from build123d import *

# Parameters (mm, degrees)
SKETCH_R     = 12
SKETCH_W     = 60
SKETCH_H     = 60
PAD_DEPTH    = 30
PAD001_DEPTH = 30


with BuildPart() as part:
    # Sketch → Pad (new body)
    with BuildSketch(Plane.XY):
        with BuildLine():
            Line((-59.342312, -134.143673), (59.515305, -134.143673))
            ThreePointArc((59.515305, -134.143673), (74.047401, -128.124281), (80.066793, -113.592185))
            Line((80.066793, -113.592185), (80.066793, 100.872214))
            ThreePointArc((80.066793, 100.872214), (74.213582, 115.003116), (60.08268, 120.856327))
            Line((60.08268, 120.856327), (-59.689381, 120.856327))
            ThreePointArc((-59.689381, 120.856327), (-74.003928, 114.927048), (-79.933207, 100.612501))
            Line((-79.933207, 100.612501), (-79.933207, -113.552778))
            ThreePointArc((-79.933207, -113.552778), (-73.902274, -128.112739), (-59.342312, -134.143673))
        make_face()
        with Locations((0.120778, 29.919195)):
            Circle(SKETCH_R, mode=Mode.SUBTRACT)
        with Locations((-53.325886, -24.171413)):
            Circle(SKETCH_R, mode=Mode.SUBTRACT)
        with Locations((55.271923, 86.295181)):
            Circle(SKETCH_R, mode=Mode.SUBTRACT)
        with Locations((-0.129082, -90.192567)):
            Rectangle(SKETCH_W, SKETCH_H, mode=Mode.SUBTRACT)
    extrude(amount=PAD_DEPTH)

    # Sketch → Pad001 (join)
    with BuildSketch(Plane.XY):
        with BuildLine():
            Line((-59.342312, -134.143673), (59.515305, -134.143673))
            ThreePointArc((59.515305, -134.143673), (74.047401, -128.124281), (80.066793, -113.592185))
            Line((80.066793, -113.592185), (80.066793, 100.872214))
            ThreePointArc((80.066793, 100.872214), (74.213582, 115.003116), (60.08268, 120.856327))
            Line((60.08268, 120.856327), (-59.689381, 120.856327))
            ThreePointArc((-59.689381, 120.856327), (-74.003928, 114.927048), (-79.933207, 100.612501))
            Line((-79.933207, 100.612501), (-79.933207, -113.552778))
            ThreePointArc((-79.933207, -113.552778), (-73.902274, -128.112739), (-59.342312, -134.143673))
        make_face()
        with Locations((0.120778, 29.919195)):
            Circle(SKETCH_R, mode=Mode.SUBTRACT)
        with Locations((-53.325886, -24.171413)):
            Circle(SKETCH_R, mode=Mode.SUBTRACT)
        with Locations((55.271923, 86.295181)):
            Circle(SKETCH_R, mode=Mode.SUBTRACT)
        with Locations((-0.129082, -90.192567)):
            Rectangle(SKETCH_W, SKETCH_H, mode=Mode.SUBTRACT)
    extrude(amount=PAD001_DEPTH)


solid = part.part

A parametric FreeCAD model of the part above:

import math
import FreeCAD as App
import Part
import Sketcher
from FreeCAD import Vector
Q = App.Units.Quantity


def add_polygon(sketch, points):
    """Adds a closed chain of lines whose ends are joined by coincident constraints."""
    first, n = sketch.GeometryCount, len(points)
    for a, b in zip(points, points[1:] + points[:1]):
        sketch.addGeometry(Part.LineSegment(App.Vector(*a, 0), App.Vector(*b, 0)), False)
    for i in range(n):
        sketch.addConstraint(Sketcher.Constraint("Coincident", first + i, 2, first + (i + 1) % n, 1))

doc = App.newDocument("Part")
body = doc.addObject("PartDesign::Body", "Body")

sketch1 = doc.addObject("Sketcher::SketchObject", "Sketch")
body.addObject(sketch1)
sketch1.AttachmentSupport = (doc.XY_Plane, [""])
sketch1.MapMode = "FlatFace"
sketch1.addGeometry(Part.LineSegment(Vector(-59, -134, 0), Vector(60, -134, 0)), False)
sketch1.addGeometry(Part.ArcOfCircle(Part.Circle(Vector(60, -114, 0), Vector(0, 0, 1), 21), math.radians(-90), math.radians(0)), False)
sketch1.addGeometry(Part.LineSegment(Vector(80, -114, 0), Vector(80, 101, 0)), False)
sketch1.addGeometry(Part.ArcOfCircle(Part.Circle(Vector(60, 101, 0), Vector(0, 0, 1), 20), math.radians(0), math.radians(90)), False)
sketch1.addGeometry(Part.LineSegment(Vector(60, 121, 0), Vector(-60, 121, 0)), False)
sketch1.addGeometry(Part.ArcOfCircle(Part.Circle(Vector(-60, 101, 0), Vector(0, 0, 1), 20), math.radians(90), math.radians(180)), False)
sketch1.addGeometry(Part.LineSegment(Vector(-80, 101, 0), Vector(-80, -114, 0)), False)
sketch1.addGeometry(Part.ArcOfCircle(Part.Circle(Vector(-59, -114, 0), Vector(0, 0, 1), 21), math.radians(180), math.radians(270)), False)
add_polygon(sketch1, [(30, -120), (-30, -120), (-30, -60), (30, -60)])
sketch1.addGeometry(Part.Circle(Vector(-53, -24, 0), Vector(0, 0, 1), 12), False)
sketch1.addGeometry(Part.Circle(Vector(0, 30, 0), Vector(0, 0, 1), 12), False)
sketch1.addGeometry(Part.Circle(Vector(55, 86, 0), Vector(0, 0, 1), 12), False)
sketch1.addConstraint([
    Sketcher.Constraint("Tangent", 0, 2, 1, 1),
    Sketcher.Constraint("Tangent", 1, 2, 2, 1),
    Sketcher.Constraint("Tangent", 2, 2, 3, 1),
    Sketcher.Constraint("Tangent", 3, 2, 4, 1),
    Sketcher.Constraint("Tangent", 4, 2, 5, 1),
    Sketcher.Constraint("Tangent", 5, 2, 6, 1),
    Sketcher.Constraint("Tangent", 6, 2, 7, 1),
    Sketcher.Constraint("Tangent", 7, 2, 0, 1),
    Sketcher.Constraint("Horizontal", 0),
    Sketcher.Constraint("Vertical", 2),
    Sketcher.Constraint("Horizontal", 4),
    Sketcher.Constraint("Vertical", 6),
    Sketcher.Constraint("Horizontal", 8),
    Sketcher.Constraint("Vertical", 9),
    Sketcher.Constraint("Horizontal", 10),
    Sketcher.Constraint("Vertical", 11),
    Sketcher.Constraint("Equal", 12, 13),
    Sketcher.Constraint("Equal", 13, 14),
    Sketcher.Constraint("Equal", 10, 9),
    Sketcher.Constraint("Diameter", 12, Q("24 mm")),
    Sketcher.Constraint("DistanceX", 8, 2, 8, 1, Q("60 mm")),
    Sketcher.Constraint("DistanceX", 6, 2, 1, 2, Q("160 mm")),
    Sketcher.Constraint("Radius", 1, Q("20.55149 mm")),
    Sketcher.Constraint("DistanceY", 2, 1, 2, 2, Q("214.464399 mm")),
    Sketcher.Constraint("Radius", 3, Q("19.984112 mm")),
    Sketcher.Constraint("Radius", 5, Q("20.243825 mm")),
    Sketcher.Constraint("Radius", 7, Q("20.590895 mm")),
    Sketcher.Constraint("DistanceY", -1, 1, 5, 2, Q("100.612501 mm")),
    Sketcher.Constraint("DistanceX", -1, 1, 3, 3, Q("60.082681 mm")),
    Sketcher.Constraint("DistanceY", -1, 1, 14, 3, Q("86.295181 mm")),
    Sketcher.Constraint("DistanceX", 12, 3, 1, 3, Q("112.841189 mm")),
    Sketcher.Constraint("DistanceY", 1, 3, 12, 3, Q("89.42077 mm")),
    Sketcher.Constraint("DistanceY", 12, 3, 13, 3, Q("54.090608 mm")),
    Sketcher.Constraint("DistanceX", 5, 3, 13, 3, Q("59.81016 mm")),
    Sketcher.Constraint("DistanceX", 12, 3, 14, 3, Q("108.597809 mm")),
    Sketcher.Constraint("DistanceX", 7, 3, 8, 2, Q("29.21323 mm")),
    Sketcher.Constraint("DistanceY", 8, 2, 7, 3, Q("6.639789 mm")),
])
pad1 = doc.addObject("PartDesign::Pad", "Pad")
body.addObject(pad1)
pad1.Profile = sketch1
pad1.Length = 30

sketch2 = doc.addObject("Sketcher::SketchObject", "Sketch001")
body.addObject(sketch2)
sketch2.AttachmentSupport = (doc.XY_Plane, [""])
sketch2.MapMode = "FlatFace"
sketch2.addGeometry(Part.LineSegment(Vector(-59, -134, 0), Vector(60, -134, 0)), False)
sketch2.addGeometry(Part.ArcOfCircle(Part.Circle(Vector(60, -114, 0), Vector(0, 0, 1), 21), math.radians(-90), math.radians(0)), False)
sketch2.addGeometry(Part.LineSegment(Vector(80, -114, 0), Vector(80, 101, 0)), False)
sketch2.addGeometry(Part.ArcOfCircle(Part.Circle(Vector(60, 101, 0), Vector(0, 0, 1), 20), math.radians(0), math.radians(90)), False)
sketch2.addGeometry(Part.LineSegment(Vector(60, 121, 0), Vector(-60, 121, 0)), False)
sketch2.addGeometry(Part.ArcOfCircle(Part.Circle(Vector(-60, 101, 0), Vector(0, 0, 1), 20), math.radians(90), math.radians(180)), False)
sketch2.addGeometry(Part.LineSegment(Vector(-80, 101, 0), Vector(-80, -114, 0)), False)
sketch2.addGeometry(Part.ArcOfCircle(Part.Circle(Vector(-59, -114, 0), Vector(0, 0, 1), 21), math.radians(180), math.radians(270)), False)
add_polygon(sketch2, [(30, -120), (-30, -120), (-30, -60), (30, -60)])
sketch2.addGeometry(Part.Circle(Vector(-53, -24, 0), Vector(0, 0, 1), 12), False)
sketch2.addGeometry(Part.Circle(Vector(0, 30, 0), Vector(0, 0, 1), 12), False)
sketch2.addGeometry(Part.Circle(Vector(55, 86, 0), Vector(0, 0, 1), 12), False)
sketch2.addConstraint([
    Sketcher.Constraint("Tangent", 0, 2, 1, 1),
    Sketcher.Constraint("Tangent", 1, 2, 2, 1),
    Sketcher.Constraint("Tangent", 2, 2, 3, 1),
    Sketcher.Constraint("Tangent", 3, 2, 4, 1),
    Sketcher.Constraint("Tangent", 4, 2, 5, 1),
    Sketcher.Constraint("Tangent", 5, 2, 6, 1),
    Sketcher.Constraint("Tangent", 6, 2, 7, 1),
    Sketcher.Constraint("Tangent", 7, 2, 0, 1),
    Sketcher.Constraint("Horizontal", 0),
    Sketcher.Constraint("Vertical", 2),
    Sketcher.Constraint("Horizontal", 4),
    Sketcher.Constraint("Vertical", 6),
    Sketcher.Constraint("Horizontal", 8),
    Sketcher.Constraint("Vertical", 9),
    Sketcher.Constraint("Horizontal", 10),
    Sketcher.Constraint("Vertical", 11),
    Sketcher.Constraint("Equal", 12, 13),
    Sketcher.Constraint("Equal", 13, 14),
    Sketcher.Constraint("Equal", 10, 9),
    Sketcher.Constraint("Diameter", 12, Q("24 mm")),
    Sketcher.Constraint("DistanceX", 8, 2, 8, 1, Q("60 mm")),
    Sketcher.Constraint("DistanceX", 6, 2, 1, 2, Q("160 mm")),
    Sketcher.Constraint("Radius", 1, Q("20.55149 mm")),
    Sketcher.Constraint("DistanceY", 2, 1, 2, 2, Q("214.464399 mm")),
    Sketcher.Constraint("Radius", 3, Q("19.984112 mm")),
    Sketcher.Constraint("Radius", 5, Q("20.243825 mm")),
    Sketcher.Constraint("Radius", 7, Q("20.590895 mm")),
    Sketcher.Constraint("DistanceY", -1, 1, 5, 2, Q("100.612501 mm")),
    Sketcher.Constraint("DistanceX", -1, 1, 3, 3, Q("60.082681 mm")),
    Sketcher.Constraint("DistanceY", -1, 1, 14, 3, Q("86.295181 mm")),
    Sketcher.Constraint("DistanceX", 12, 3, 1, 3, Q("112.841189 mm")),
    Sketcher.Constraint("DistanceY", 1, 3, 12, 3, Q("89.42077 mm")),
    Sketcher.Constraint("DistanceY", 12, 3, 13, 3, Q("54.090608 mm")),
    Sketcher.Constraint("DistanceX", 5, 3, 13, 3, Q("59.81016 mm")),
    Sketcher.Constraint("DistanceX", 12, 3, 14, 3, Q("108.597809 mm")),
    Sketcher.Constraint("DistanceX", 7, 3, 8, 2, Q("29.21323 mm")),
    Sketcher.Constraint("DistanceY", 8, 2, 7, 3, Q("6.639789 mm")),
])
pad2 = doc.addObject("PartDesign::Pad", "Pad001")
body.addObject(pad2)
pad2.Profile = sketch2
pad2.Length = 30

doc.recompute()
